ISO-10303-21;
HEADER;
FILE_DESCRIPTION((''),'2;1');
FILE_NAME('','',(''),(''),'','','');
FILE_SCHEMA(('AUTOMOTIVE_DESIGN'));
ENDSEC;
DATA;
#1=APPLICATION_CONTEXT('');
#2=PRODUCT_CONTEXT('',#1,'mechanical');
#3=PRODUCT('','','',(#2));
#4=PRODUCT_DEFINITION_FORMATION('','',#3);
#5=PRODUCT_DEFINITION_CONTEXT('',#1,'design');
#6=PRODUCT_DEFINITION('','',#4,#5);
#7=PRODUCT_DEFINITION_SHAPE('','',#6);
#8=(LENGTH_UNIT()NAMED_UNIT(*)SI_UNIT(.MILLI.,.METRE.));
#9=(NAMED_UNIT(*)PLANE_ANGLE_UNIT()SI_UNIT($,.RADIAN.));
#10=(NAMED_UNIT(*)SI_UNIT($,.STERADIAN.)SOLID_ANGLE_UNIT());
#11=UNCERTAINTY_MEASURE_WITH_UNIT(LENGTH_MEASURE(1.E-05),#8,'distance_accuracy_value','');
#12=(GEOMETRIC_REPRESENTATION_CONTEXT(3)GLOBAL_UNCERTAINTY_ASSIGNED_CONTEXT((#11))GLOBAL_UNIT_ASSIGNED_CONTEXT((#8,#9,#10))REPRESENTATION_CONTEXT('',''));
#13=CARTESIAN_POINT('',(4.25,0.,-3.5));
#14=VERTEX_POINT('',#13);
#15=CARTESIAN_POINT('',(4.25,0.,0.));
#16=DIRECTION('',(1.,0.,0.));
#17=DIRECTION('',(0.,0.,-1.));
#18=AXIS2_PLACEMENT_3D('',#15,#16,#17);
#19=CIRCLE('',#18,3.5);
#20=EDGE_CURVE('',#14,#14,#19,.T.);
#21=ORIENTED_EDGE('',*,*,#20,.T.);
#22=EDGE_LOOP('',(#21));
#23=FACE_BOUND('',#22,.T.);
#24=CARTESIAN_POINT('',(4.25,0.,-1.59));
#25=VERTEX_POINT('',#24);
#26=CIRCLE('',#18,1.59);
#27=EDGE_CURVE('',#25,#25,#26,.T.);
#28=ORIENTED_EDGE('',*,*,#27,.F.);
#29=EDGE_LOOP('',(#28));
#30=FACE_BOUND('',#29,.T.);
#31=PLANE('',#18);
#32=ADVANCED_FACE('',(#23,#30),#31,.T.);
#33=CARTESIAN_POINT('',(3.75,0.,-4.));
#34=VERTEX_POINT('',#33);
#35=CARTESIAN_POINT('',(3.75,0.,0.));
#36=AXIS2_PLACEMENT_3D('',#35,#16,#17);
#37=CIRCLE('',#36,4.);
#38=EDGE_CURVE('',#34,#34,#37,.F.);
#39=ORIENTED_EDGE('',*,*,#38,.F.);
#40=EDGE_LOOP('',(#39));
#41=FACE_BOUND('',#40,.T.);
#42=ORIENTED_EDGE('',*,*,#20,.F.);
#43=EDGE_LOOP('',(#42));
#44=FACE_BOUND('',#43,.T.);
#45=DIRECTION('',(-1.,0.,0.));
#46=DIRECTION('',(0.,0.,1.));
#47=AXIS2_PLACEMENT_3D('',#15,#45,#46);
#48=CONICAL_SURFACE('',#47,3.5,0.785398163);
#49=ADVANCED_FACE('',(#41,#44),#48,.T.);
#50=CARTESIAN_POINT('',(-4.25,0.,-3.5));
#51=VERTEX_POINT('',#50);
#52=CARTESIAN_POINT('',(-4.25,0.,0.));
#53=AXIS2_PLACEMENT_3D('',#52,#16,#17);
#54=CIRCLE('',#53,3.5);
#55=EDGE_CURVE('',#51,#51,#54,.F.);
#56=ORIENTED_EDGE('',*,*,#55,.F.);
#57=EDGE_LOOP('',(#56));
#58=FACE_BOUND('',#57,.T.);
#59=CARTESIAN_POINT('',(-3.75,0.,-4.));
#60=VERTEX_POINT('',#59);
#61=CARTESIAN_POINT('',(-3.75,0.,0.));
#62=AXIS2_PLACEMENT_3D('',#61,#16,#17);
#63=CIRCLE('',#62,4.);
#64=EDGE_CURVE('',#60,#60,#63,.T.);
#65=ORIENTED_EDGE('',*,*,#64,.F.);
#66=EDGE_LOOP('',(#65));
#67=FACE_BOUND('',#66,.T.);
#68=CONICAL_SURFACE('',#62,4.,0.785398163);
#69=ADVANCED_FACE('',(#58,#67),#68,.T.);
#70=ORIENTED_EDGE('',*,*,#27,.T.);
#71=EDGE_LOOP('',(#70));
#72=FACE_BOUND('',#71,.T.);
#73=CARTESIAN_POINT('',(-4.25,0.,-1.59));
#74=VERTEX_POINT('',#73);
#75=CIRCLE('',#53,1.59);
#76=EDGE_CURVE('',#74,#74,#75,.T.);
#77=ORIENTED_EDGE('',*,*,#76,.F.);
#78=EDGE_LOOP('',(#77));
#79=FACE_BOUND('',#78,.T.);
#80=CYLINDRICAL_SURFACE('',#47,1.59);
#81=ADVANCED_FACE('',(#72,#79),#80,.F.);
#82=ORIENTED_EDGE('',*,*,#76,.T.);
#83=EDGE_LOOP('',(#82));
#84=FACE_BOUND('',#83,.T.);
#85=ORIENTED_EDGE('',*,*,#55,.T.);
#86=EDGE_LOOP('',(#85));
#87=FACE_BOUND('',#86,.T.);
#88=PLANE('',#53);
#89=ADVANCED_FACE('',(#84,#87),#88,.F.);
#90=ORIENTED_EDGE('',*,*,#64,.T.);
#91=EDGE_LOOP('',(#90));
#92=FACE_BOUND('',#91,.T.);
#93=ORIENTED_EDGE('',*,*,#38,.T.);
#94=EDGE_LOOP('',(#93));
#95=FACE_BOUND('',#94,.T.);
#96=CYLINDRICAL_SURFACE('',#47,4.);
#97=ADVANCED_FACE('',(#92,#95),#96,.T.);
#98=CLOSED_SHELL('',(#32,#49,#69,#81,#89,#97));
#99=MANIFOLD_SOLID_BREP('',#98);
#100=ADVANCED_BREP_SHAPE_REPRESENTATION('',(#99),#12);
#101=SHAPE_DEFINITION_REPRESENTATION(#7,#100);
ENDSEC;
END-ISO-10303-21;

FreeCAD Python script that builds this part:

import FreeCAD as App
import Part
import Sketcher

V = App.Vector
Q = App.Units.Quantity


def edges_at(feature, points):
    """Names of the edges that pass closest to the given points."""
    edges = feature.Shape.Edges
    near = lambda p: min(range(len(edges)), key=lambda i: edges[i].distToShape(Part.Vertex(*p))[0])
    return sorted({f"Edge{near(p) + 1}" for p in points})

doc = App.newDocument("Part")
body = doc.addObject("PartDesign::Body", "Body")

sketch1 = doc.addObject("Sketcher::SketchObject", "Sketch")
body.addObject(sketch1)
sketch1.AttachmentSupport = (doc.YZ_Plane, [""])
sketch1.MapMode = "FlatFace"
sketch1.addGeometry(Part.Circle(V(0, 0, 0), V(0, 0, 1), 4), False)
sketch1.addGeometry(Part.Circle(V(0, 0, 0), V(0, 0, 1), 1.59), False)
sketch1.addConstraint(Sketcher.Constraint("Coincident", 0, 3, -1, 1))
sketch1.addConstraint(Sketcher.Constraint("Coincident", 1, 3, -1, 1))
sketch1.addConstraint(Sketcher.Constraint("Diameter", 0, Q("8 mm")))
sketch1.addConstraint(Sketcher.Constraint("Diameter", 1, Q("3.18 mm")))
pad1 = doc.addObject("PartDesign::Pad", "Pad")
body.addObject(pad1)
pad1.Profile = sketch1
pad1.Length = 8.5
pad1.Midplane = True
doc.recompute()

chamfer = doc.addObject("PartDesign::Chamfer", "Chamfer")
body.addObject(chamfer)
chamfer.Base = (pad1, edges_at(pad1, [(-4.25, 0, 4), (4.25, 0, 4)]))
chamfer.Size = 0.5

doc.recompute()
